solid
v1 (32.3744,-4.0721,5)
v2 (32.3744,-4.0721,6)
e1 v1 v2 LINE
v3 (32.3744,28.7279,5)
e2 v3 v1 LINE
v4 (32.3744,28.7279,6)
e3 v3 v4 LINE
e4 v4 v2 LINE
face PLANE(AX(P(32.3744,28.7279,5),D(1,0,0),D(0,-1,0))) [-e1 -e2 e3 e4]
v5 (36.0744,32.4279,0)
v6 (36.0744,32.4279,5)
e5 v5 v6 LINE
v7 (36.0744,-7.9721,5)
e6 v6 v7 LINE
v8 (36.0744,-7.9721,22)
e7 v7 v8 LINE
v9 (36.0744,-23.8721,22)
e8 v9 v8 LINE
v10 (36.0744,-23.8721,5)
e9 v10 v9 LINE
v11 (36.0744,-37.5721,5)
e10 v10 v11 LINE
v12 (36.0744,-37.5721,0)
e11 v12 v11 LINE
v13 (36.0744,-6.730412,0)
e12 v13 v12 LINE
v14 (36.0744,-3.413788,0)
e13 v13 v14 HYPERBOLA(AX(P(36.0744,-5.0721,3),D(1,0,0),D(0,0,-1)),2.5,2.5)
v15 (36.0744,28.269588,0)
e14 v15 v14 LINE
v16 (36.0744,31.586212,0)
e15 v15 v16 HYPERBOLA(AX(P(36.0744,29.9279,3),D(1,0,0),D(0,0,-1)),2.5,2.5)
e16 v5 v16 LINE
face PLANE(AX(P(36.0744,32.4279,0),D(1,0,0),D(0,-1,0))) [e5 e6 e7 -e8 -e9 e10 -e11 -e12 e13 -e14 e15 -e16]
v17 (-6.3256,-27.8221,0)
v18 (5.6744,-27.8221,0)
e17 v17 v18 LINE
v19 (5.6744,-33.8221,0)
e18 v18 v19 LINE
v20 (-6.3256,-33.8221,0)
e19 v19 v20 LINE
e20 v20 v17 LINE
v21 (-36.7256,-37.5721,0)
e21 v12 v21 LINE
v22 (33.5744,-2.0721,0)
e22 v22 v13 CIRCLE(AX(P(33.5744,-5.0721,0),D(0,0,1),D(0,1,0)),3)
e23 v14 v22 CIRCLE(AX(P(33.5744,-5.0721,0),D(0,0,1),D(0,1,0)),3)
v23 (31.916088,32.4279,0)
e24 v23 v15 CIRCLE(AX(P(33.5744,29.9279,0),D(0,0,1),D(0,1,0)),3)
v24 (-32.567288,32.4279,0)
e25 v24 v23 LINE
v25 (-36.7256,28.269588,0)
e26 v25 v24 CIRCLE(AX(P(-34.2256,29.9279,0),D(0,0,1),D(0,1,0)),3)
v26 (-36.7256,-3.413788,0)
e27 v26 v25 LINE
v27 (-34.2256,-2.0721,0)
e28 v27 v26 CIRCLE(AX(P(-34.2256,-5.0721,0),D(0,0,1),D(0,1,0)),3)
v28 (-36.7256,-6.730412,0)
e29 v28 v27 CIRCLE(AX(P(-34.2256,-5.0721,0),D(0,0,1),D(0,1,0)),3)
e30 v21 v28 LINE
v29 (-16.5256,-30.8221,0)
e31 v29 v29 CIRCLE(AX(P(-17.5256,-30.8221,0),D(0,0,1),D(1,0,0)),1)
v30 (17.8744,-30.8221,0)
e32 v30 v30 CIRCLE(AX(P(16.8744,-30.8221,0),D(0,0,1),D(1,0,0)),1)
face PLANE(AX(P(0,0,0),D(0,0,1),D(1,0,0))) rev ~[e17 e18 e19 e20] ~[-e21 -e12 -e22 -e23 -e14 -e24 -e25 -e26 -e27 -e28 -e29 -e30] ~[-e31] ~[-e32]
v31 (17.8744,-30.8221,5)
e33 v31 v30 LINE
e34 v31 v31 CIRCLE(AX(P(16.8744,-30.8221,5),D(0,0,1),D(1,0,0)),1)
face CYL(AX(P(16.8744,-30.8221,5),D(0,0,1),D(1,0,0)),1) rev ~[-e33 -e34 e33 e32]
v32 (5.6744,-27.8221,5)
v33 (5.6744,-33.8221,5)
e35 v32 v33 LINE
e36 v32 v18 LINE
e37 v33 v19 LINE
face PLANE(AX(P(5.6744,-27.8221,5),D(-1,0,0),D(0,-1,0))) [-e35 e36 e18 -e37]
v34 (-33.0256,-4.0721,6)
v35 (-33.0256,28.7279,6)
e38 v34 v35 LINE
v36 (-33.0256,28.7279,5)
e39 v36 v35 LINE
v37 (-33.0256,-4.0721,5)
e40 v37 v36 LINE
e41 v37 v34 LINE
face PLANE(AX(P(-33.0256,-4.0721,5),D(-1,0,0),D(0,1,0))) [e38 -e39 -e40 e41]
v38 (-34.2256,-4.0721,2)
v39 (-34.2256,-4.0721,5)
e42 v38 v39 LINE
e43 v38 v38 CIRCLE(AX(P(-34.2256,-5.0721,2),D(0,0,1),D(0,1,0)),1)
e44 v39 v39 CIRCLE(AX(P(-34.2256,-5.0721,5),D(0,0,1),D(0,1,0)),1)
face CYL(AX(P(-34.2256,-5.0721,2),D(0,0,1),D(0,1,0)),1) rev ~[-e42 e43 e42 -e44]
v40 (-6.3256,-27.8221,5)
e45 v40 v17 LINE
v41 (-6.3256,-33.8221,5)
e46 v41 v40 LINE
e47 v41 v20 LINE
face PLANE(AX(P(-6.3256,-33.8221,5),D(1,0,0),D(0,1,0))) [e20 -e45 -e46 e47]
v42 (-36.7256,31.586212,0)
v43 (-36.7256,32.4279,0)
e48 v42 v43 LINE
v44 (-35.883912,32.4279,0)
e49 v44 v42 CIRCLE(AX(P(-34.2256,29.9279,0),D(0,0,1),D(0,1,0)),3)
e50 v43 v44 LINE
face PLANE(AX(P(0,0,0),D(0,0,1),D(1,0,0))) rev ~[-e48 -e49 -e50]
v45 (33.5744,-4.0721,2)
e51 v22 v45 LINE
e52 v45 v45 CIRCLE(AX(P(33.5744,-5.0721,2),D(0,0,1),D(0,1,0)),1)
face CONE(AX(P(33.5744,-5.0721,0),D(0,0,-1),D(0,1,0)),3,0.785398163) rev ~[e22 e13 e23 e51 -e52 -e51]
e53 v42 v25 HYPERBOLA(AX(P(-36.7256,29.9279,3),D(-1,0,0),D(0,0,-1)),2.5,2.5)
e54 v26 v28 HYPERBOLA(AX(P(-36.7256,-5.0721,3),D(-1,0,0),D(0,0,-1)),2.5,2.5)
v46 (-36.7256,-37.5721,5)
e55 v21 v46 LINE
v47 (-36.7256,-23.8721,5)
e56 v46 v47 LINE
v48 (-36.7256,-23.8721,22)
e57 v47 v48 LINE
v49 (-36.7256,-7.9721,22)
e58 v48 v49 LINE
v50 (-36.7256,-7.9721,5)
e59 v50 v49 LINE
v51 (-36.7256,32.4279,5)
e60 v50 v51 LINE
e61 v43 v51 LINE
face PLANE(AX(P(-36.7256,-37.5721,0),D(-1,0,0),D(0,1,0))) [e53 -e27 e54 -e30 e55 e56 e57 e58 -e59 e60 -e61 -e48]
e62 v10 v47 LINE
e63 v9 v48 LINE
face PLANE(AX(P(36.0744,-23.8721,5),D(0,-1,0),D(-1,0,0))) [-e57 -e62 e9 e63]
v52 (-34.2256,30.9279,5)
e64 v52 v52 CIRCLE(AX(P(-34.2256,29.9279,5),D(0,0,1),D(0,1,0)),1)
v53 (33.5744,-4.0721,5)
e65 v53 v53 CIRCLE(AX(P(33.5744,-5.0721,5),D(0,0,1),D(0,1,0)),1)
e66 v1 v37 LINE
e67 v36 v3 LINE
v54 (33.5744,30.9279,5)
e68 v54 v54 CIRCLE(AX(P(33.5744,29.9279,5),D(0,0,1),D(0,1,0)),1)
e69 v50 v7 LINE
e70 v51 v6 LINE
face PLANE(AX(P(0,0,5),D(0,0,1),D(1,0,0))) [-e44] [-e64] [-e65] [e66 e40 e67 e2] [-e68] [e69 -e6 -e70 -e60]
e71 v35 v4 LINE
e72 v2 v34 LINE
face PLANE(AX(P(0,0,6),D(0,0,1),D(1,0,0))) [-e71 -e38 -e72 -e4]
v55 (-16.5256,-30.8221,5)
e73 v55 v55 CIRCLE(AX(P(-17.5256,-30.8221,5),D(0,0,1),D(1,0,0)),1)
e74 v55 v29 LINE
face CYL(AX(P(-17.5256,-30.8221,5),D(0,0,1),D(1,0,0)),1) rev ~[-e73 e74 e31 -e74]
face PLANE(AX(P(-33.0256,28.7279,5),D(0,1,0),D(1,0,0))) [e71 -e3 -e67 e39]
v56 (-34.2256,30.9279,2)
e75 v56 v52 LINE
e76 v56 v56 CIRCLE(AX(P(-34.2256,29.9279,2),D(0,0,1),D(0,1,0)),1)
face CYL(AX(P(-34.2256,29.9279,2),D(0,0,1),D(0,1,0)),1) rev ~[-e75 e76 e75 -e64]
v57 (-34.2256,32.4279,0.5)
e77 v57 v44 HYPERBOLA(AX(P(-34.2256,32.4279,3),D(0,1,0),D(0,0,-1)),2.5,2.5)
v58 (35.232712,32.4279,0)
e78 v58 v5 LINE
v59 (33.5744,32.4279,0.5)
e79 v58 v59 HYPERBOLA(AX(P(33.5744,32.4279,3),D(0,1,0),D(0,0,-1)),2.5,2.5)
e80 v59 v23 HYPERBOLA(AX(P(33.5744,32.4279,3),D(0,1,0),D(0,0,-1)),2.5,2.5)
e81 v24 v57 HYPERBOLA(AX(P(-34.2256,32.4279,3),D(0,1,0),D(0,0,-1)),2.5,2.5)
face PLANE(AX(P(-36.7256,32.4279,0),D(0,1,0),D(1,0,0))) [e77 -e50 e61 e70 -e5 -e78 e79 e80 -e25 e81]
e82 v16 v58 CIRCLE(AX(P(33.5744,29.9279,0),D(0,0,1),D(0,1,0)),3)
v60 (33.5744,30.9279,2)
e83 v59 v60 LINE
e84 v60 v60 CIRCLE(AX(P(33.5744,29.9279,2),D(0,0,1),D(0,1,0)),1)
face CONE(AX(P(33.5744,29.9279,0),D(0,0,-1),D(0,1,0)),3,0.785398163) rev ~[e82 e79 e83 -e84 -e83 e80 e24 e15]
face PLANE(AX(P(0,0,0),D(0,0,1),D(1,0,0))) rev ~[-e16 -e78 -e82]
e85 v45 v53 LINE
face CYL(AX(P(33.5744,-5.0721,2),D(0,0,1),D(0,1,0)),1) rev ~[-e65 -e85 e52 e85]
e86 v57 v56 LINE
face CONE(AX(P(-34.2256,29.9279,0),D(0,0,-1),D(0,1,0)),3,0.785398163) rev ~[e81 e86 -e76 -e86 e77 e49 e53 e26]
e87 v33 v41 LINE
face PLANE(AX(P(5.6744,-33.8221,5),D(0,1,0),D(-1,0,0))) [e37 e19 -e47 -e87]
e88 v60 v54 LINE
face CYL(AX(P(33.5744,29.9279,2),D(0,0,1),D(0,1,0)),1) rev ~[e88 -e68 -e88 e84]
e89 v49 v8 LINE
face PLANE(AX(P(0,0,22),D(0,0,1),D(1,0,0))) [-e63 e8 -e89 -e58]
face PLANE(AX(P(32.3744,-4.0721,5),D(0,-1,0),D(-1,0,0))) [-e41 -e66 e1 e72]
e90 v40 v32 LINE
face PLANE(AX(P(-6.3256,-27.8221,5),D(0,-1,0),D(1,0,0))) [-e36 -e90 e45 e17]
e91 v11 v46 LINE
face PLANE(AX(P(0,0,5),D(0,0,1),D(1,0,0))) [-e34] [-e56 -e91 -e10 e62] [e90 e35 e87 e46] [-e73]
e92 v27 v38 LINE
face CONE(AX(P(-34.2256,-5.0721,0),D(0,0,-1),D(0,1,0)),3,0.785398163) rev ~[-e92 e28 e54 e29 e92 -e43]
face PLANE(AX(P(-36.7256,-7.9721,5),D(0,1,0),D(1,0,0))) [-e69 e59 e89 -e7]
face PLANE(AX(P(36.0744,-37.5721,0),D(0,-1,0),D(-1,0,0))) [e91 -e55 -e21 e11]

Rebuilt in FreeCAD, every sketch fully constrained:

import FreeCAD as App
import Part
import Sketcher


def add_polygon(sketch, points):
    """Adds a closed chain of lines whose ends are joined by coincident constraints."""
    first, n = sketch.GeometryCount, len(points)
    for a, b in zip(points, points[1:] + points[:1]):
        sketch.addGeometry(Part.LineSegment(App.Vector(*a, 0), App.Vector(*b, 0)), False)
    for i in range(n):
        sketch.addConstraint(Sketcher.Constraint("Coincident", first + i, 2, first + (i + 1) % n, 1))

doc = App.newDocument("Part")
body = doc.addObject("PartDesign::Body", "Body")

sketch1 = body.newObject("Sketcher::SketchObject", "Sketch")
sketch1.AttachmentSupport = (doc.getObject("XY_Plane"), [""])
sketch1.MapMode = "FlatFace"
add_polygon(sketch1, [(36.0744, 32.4279), (-36.7256, 32.4279), (-36.7256, -37.5721), (36.0744, -37.5721)])
sketch1.addConstraint(Sketcher.Constraint("Horizontal", 0))
sketch1.addConstraint(Sketcher.Constraint("Vertical", 1))
sketch1.addConstraint(Sketcher.Constraint("Horizontal", 2))
sketch1.addConstraint(Sketcher.Constraint("Vertical", 3))
sketch1.addConstraint(Sketcher.Constraint("DistanceY", 1, 2, 1, 1, 70.0))
sketch1.addConstraint(Sketcher.Constraint("DistanceX", 0, 2, 0, 1, 72.8))
sketch1.addConstraint(Sketcher.Constraint("DistanceY", -1, 1, 0, 2, 32.428))
sketch1.addConstraint(Sketcher.Constraint("DistanceX", 0, 2, -1, 1, 36.7256))
pad1 = body.newObject("PartDesign::Pad", "Pad")
pad1.Profile = sketch1
pad1.Length = 5

sketch2 = body.newObject("Sketcher::SketchObject", "Sketch001")
sketch2.AttachmentSupport = (doc.getObject("XY_Plane"), [""])
sketch2.MapMode = "FlatFace"
sketch2.AttachmentOffset = App.Placement(App.Vector(0, 0, 5), App.Rotation())
add_polygon(sketch2, [(32.3744, 28.7279), (-33.0256, 28.7279), (-33.0256, -4.0721), (32.3744, -4.0721)])
sketch2.addConstraint(Sketcher.Constraint("Horizontal", 0))
sketch2.addConstraint(Sketcher.Constraint("Vertical", 1))
sketch2.addConstraint(Sketcher.Constraint("Horizontal", 2))
sketch2.addConstraint(Sketcher.Constraint("Vertical", 3))
sketch2.addConstraint(Sketcher.Constraint("DistanceY", 1, 2, 1, 1, 32.8))
sketch2.addConstraint(Sketcher.Constraint("DistanceX", 0, 2, 0, 1, 65.4))
sketch2.addConstraint(Sketcher.Constraint("DistanceY", -1, 1, 0, 2, 28.728))
sketch2.addConstraint(Sketcher.Constraint("DistanceX", 0, 2, -1, 1, 33.0256))
pad2 = body.newObject("PartDesign::Pad", "Pad001")
pad2.Profile = sketch2
pad2.Length = 1

sketch3 = body.newObject("Sketcher::SketchObject", "Sketch002")
sketch3.AttachmentSupport = (doc.getObject("XY_Plane"), [""])
sketch3.MapMode = "FlatFace"
sketch3.addGeometry(Part.Circle(App.Vector(33.5744, 29.9279, 0), App.Vector(0, 0, 1), 1), False)
sketch3.addGeometry(Part.Circle(App.Vector(-34.2256, 29.9279, 0), App.Vector(0, 0, 1), 1), False)
sketch3.addGeometry(Part.Circle(App.Vector(-34.2256, -5.0721, 0), App.Vector(0, 0, 1), 1), False)
sketch3.addGeometry(Part.Circle(App.Vector(33.5744, -5.0721, 0), App.Vector(0, 0, 1), 1), False)
sketch3.addConstraint(Sketcher.Constraint("Equal", 0, 1))
sketch3.addConstraint(Sketcher.Constraint("Equal", 1, 2))
sketch3.addConstraint(Sketcher.Constraint("Equal", 2, 3))
sketch3.addConstraint(Sketcher.Constraint("Horizontal", 0, 3, 1, 3))
sketch3.addConstraint(Sketcher.Constraint("Horizontal", 2, 3, 3, 3))
sketch3.addConstraint(Sketcher.Constraint("Vertical", 1, 3, 2, 3))
sketch3.addConstraint(Sketcher.Constraint("Vertical", 0, 3, 3, 3))
sketch3.addConstraint(Sketcher.Constraint("Diameter", 0, 2.0))
sketch3.addConstraint(Sketcher.Constraint("DistanceY", 2, 3, 1, 3, 35.0))
sketch3.addConstraint(Sketcher.Constraint("DistanceX", 1, 3, 0, 3, 67.8))
sketch3.addConstraint(Sketcher.Constraint("DistanceY", -1, 1, 0, 3, 29.928))
sketch3.addConstraint(Sketcher.Constraint("DistanceX", -1, 1, 0, 3, 33.5744))
doc.recompute()
hole = body.newObject("PartDesign::Hole", "Hole")
hole.Profile = sketch3
hole.ThreadType = "None"
hole.Diameter = 2
hole.DepthType = "ThroughAll"
hole.HoleCutType = "Countersink"
hole.HoleCutDiameter = 6
hole.HoleCutCountersinkAngle = 90
hole.Reversed = True

sketch4 = body.newObject("Sketcher::SketchObject", "Sketch003")
sketch4.AttachmentSupport = (doc.getObject("XY_Plane"), [""])
sketch4.MapMode = "FlatFace"
sketch4.AttachmentOffset = App.Placement(App.Vector(0, 0, 5), App.Rotation())
add_polygon(sketch4, [(-36.7256, -7.9721), (-36.7256, -23.8721), (36.0744, -23.8721), (36.0744, -7.9721)])
sketch4.addConstraint(Sketcher.Constraint("Vertical", 0))
sketch4.addConstraint(Sketcher.Constraint("Horizontal", 1))
sketch4.addConstraint(Sketcher.Constraint("Vertical", 2))
sketch4.addConstraint(Sketcher.Constraint("Horizontal", 3))
sketch4.addConstraint(Sketcher.Constraint("DistanceX", 1, 1, 1, 2, 72.8))
sketch4.addConstraint(Sketcher.Constraint("DistanceY", 0, 2, 0, 1, 15.9))
sketch4.addConstraint(Sketcher.Constraint("DistanceY", 0, 2, -1, 1, 23.872))
sketch4.addConstraint(Sketcher.Constraint("DistanceX", 0, 2, -1, 1, 36.7256))
pad3 = body.newObject("PartDesign::Pad", "Pad002")
pad3.Profile = sketch4
pad3.Length = 17

sketch5 = body.newObject("Sketcher::SketchObject", "Sketch004")
sketch5.AttachmentSupport = (doc.getObject("XY_Plane"), [""])
sketch5.MapMode = "FlatFace"
sketch5.AttachmentOffset = App.Placement(App.Vector(0, 0, 5), App.Rotation())
sketch5.addGeometry(Part.Circle(App.Vector(-17.5256, -30.8221, 0), App.Vector(0, 0, 1), 1), False)
sketch5.addGeometry(Part.Circle(App.Vector(16.8744, -30.8221, 0), App.Vector(0, 0, 1), 1), False)
sketch5.addConstraint(Sketcher.Constraint("Equal", 0, 1))
sketch5.addConstraint(Sketcher.Constraint("Horizontal", 0, 3, 1, 3))
sketch5.addConstraint(Sketcher.Constraint("Diameter", 0, 2.0))
sketch5.addConstraint(Sketcher.Constraint("DistanceX", 0, 3, 1, 3, 34.4))
sketch5.addConstraint(Sketcher.Constraint("DistanceY", 0, 3, -1, 1, 30.822))
sketch5.addConstraint(Sketcher.Constraint("DistanceX", 0, 3, -1, 1, 17.5256))
pocket1 = body.newObject("PartDesign::Pocket", "Pocket")
pocket1.Profile = sketch5
pocket1.Type = "ThroughAll"

sketch6 = body.newObject("Sketcher::SketchObject", "Sketch005")
sketch6.AttachmentSupport = (doc.getObject("XY_Plane"), [""])
sketch6.MapMode = "FlatFace"
sketch6.AttachmentOffset = App.Placement(App.Vector(0, 0, 5), App.Rotation())
add_polygon(sketch6, [(5.6744, -27.8221), (-6.3256, -27.8221), (-6.3256, -33.8221), (5.6744, -33.8221)])
sketch6.addConstraint(Sketcher.Constraint("Horizontal", 0))
sketch6.addConstraint(Sketcher.Constraint("Vertical", 1))
sketch6.addConstraint(Sketcher.Constraint("Horizontal", 2))
sketch6.addConstraint(Sketcher.Constraint("Vertical", 3))
sketch6.addConstraint(Sketcher.Constraint("DistanceX", 0, 2, 0, 1, 12.0))
sketch6.addConstraint(Sketcher.Constraint("DistanceY", 1, 2, 1, 1, 6.0))
sketch6.addConstraint(Sketcher.Constraint("DistanceY", 0, 2, -1, 1, 27.822))
sketch6.addConstraint(Sketcher.Constraint("DistanceX", 0, 2, -1, 1, 6.3256))
pocket2 = body.newObject("PartDesign::Pocket", "Pocket001")
pocket2.Profile = sketch6
pocket2.Type = "ThroughAll"

doc.recompute()
